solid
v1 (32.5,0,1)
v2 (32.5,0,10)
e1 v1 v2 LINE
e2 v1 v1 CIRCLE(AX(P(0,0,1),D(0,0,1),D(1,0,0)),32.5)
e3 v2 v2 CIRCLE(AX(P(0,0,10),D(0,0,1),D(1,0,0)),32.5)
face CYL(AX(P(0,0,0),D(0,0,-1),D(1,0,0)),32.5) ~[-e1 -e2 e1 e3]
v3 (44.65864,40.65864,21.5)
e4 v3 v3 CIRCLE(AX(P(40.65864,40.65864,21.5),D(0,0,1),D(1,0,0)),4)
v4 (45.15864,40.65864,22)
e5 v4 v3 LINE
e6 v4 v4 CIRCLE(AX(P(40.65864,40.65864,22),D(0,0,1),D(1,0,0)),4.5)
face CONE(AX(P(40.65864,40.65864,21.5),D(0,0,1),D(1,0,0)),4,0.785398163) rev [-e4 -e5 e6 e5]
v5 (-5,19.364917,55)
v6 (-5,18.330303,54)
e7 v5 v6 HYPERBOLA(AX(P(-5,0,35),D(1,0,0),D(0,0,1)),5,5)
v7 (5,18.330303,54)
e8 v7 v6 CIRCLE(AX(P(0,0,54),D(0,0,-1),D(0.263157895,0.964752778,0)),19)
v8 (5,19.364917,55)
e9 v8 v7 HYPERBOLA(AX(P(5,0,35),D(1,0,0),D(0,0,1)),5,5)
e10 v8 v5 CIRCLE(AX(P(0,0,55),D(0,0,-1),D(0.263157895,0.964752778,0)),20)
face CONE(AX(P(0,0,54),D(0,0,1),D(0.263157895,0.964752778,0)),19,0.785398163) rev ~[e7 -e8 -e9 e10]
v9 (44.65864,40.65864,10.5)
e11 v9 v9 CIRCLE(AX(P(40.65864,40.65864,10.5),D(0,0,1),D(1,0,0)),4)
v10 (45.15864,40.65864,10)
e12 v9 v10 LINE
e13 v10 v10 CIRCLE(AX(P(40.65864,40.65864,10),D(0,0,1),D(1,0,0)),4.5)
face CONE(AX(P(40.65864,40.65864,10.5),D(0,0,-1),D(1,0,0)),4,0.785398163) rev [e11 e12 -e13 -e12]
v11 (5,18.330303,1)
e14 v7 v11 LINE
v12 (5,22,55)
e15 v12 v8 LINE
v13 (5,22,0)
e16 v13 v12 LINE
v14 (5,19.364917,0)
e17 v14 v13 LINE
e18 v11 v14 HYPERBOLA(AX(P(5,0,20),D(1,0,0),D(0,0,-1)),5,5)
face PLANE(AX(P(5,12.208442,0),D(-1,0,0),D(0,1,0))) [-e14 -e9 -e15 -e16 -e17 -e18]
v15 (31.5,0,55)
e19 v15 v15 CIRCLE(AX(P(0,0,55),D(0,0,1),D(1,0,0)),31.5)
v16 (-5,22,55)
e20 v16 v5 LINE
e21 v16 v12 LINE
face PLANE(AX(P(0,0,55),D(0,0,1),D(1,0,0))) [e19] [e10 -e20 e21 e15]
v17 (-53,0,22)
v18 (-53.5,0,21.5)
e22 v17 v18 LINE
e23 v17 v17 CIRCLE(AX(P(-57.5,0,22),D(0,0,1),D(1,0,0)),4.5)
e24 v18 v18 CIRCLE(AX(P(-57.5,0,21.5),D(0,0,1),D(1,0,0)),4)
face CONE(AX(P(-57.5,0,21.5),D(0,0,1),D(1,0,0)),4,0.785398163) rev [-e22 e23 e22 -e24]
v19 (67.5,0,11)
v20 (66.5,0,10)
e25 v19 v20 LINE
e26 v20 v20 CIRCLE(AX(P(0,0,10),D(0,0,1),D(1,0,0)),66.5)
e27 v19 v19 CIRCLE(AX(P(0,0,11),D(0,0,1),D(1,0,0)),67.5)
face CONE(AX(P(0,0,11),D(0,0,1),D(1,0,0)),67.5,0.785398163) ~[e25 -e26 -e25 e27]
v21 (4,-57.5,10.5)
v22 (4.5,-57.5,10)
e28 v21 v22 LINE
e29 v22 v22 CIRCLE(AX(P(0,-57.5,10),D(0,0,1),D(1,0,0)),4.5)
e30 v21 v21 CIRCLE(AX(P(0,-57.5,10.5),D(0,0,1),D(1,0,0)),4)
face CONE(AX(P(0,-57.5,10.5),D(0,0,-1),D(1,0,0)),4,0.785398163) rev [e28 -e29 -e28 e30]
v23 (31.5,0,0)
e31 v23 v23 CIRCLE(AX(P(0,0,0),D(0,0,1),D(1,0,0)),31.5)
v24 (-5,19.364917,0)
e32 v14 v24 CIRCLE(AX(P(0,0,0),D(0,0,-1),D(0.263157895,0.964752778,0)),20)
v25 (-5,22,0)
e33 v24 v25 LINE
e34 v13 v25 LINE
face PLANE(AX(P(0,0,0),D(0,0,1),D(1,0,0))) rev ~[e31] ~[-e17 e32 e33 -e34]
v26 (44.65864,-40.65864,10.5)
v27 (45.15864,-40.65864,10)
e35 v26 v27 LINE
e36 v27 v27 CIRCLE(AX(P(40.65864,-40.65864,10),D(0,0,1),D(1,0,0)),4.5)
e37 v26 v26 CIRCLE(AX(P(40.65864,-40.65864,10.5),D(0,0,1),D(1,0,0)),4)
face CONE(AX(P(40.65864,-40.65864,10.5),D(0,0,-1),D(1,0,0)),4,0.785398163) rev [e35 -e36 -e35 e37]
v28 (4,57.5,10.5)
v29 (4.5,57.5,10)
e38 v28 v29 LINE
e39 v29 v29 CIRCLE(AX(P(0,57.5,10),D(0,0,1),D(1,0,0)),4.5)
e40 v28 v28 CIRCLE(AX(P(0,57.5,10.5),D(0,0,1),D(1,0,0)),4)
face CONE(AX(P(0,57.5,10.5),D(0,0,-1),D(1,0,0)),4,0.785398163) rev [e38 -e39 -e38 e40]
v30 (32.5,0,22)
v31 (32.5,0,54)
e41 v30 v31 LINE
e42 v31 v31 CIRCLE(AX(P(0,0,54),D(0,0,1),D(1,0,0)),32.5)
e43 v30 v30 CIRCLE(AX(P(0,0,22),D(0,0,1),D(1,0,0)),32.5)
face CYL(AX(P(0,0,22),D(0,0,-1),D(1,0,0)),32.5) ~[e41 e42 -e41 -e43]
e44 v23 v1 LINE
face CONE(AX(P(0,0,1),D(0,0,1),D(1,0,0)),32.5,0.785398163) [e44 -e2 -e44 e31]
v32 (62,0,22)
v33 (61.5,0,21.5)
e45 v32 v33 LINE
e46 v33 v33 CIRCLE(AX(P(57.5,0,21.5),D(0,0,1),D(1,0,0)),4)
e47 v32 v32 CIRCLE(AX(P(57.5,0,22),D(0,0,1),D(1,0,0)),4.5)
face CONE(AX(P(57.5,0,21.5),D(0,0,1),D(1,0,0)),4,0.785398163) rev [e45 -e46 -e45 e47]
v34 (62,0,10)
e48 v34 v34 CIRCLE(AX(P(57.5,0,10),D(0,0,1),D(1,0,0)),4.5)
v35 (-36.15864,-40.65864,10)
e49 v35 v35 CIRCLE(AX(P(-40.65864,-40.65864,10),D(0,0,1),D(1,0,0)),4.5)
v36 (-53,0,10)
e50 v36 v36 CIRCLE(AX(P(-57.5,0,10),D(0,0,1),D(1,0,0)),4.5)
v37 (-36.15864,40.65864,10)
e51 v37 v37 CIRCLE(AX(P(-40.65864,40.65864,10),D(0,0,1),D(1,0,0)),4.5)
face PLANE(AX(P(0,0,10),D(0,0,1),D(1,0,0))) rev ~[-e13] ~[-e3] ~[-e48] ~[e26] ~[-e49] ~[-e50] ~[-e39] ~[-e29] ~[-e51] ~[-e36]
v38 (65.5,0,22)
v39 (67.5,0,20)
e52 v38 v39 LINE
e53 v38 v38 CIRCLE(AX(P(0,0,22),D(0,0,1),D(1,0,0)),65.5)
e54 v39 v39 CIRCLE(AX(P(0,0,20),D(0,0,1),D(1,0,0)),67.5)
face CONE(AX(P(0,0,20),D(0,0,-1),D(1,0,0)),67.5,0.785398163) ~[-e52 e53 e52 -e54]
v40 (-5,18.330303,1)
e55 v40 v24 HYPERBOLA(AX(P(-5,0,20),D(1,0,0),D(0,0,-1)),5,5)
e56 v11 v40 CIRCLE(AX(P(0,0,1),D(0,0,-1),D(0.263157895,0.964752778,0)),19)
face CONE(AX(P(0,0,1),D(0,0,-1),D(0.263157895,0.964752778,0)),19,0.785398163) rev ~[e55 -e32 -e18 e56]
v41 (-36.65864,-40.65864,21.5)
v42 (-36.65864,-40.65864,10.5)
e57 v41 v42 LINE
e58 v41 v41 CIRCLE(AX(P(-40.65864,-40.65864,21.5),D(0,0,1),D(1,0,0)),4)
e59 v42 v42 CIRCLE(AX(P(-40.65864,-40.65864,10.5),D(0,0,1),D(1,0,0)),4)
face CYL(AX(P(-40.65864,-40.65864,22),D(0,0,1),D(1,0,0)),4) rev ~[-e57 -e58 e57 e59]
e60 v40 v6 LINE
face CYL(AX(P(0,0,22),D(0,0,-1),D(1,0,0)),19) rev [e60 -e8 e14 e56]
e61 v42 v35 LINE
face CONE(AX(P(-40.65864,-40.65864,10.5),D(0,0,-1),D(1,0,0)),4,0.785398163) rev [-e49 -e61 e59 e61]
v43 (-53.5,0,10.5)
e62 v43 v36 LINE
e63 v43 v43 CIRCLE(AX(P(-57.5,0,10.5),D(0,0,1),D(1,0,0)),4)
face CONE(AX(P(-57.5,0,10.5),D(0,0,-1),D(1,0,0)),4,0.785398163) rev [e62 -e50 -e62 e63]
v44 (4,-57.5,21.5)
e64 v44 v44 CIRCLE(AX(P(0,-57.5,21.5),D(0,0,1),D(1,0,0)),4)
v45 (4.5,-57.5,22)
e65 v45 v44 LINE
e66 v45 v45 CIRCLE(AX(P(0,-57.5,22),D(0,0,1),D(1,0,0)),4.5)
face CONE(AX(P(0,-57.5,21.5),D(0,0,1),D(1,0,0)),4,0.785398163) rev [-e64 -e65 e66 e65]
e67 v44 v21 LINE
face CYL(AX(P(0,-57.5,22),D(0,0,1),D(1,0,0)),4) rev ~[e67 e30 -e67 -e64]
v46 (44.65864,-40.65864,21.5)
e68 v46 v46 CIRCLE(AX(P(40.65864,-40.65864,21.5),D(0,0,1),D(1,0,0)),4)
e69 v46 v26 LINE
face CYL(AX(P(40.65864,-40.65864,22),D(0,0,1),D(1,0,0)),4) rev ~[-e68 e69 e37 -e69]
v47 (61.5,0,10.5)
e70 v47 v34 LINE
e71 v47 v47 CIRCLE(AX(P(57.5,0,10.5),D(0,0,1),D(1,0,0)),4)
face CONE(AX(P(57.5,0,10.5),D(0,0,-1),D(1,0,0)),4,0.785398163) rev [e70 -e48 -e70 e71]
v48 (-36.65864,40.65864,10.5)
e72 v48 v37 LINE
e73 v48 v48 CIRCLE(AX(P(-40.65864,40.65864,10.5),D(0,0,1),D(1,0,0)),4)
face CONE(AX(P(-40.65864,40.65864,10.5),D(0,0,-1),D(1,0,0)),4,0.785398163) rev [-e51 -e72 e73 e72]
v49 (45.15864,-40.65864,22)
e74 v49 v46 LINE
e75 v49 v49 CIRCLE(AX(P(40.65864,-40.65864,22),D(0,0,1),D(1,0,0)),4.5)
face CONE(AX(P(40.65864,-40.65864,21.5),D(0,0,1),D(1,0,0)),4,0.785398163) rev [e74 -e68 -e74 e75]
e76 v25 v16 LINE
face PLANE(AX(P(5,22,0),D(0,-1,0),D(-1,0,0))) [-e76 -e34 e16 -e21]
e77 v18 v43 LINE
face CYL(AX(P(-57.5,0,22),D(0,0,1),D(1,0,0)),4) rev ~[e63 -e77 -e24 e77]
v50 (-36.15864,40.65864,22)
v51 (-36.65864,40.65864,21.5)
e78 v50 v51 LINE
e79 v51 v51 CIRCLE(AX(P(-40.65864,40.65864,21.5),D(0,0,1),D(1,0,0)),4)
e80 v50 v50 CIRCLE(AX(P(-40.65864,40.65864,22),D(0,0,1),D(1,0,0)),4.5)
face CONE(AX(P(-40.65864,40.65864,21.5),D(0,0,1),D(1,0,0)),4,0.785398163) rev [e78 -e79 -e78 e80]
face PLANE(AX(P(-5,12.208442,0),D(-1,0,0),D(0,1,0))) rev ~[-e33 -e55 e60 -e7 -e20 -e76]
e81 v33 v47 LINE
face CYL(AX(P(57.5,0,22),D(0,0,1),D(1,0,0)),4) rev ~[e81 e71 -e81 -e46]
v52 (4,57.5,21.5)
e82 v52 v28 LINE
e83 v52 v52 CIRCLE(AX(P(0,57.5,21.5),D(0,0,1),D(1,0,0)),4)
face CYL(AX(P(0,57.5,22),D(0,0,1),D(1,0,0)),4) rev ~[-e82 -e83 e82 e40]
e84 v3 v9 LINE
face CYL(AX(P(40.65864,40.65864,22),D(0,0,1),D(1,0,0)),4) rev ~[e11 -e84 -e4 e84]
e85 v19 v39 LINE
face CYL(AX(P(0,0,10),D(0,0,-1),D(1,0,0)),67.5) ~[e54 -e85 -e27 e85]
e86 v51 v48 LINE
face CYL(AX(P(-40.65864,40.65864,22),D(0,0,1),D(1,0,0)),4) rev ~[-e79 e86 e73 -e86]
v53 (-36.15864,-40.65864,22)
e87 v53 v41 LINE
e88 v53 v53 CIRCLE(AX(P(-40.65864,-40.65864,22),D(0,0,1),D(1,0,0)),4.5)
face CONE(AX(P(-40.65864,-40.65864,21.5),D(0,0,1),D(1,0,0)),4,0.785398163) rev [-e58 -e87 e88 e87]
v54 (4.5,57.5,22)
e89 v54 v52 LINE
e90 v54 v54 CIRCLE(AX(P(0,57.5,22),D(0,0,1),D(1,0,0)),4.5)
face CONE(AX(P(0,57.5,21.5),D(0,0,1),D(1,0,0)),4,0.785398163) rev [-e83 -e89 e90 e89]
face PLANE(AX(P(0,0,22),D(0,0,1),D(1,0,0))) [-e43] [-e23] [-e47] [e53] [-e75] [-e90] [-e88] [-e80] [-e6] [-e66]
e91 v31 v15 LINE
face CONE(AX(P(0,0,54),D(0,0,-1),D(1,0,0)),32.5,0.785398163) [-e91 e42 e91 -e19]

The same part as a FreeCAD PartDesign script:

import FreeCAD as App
import Part
import Sketcher
from FreeCAD import Vector


def edges_at(feature, points):
    """Names of the edges that pass closest to the given points."""
    edges = feature.Shape.Edges
    near = lambda p: min(range(len(edges)), key=lambda i: edges[i].distToShape(Part.Vertex(*p))[0])
    return sorted({f"Edge{near(p) + 1}" for p in points})

doc = App.newDocument("Part")
body = doc.addObject("PartDesign::Body", "Body")

sketch1 = body.newObject("Sketcher::SketchObject", "Sketch")
sketch1.AttachmentSupport = (doc.getObject("XY_Plane"), [""])
sketch1.MapMode = "FlatFace"
sketch1.addGeometry(Part.Circle(Vector(0, 0, 0), Vector(0, 0, 1), 32), False)
sketch1.addConstraint(Sketcher.Constraint("Coincident", 0, 3, -1, 1))
sketch1.addConstraint(Sketcher.Constraint("Diameter", 0, 65.0))
pad1 = body.newObject("PartDesign::Pad", "Pad")
pad1.Profile = sketch1
pad1.Length = 10

sketch2 = body.newObject("Sketcher::SketchObject", "Sketch001")
sketch2.AttachmentSupport = (doc.getObject("XY_Plane"), [""])
sketch2.MapMode = "FlatFace"
sketch2.AttachmentOffset = App.Placement(Vector(0, 0, 10), App.Rotation())
sketch2.addGeometry(Part.Circle(Vector(0, 0, 0), Vector(0, 0, 1), 68), False)
sketch2.addConstraint(Sketcher.Constraint("Coincident", 0, 3, -1, 1))
sketch2.addConstraint(Sketcher.Constraint("Diameter", 0, 135.0))
pad2 = body.newObject("PartDesign::Pad", "Pad001")
pad2.Profile = sketch2
pad2.Length = 12

sketch3 = body.newObject("Sketcher::SketchObject", "Sketch002")
sketch3.AttachmentSupport = (doc.getObject("XY_Plane"), [""])
sketch3.MapMode = "FlatFace"
sketch3.AttachmentOffset = App.Placement(Vector(0, 0, 22), App.Rotation())
sketch3.addGeometry(Part.Circle(Vector(0, 0, 0), Vector(0, 0, 1), 19), False)
sketch3.addConstraint(Sketcher.Constraint("Coincident", 0, 3, -1, 1))
sketch3.addConstraint(Sketcher.Constraint("Diameter", 0, 38.0))
pocket1 = body.newObject("PartDesign::Pocket", "Pocket")
pocket1.Profile = sketch3
pocket1.Length = 45

sketch4 = body.newObject("Sketcher::SketchObject", "Sketch003")
sketch4.AttachmentSupport = (doc.getObject("XY_Plane"), [""])
sketch4.MapMode = "FlatFace"
sketch4.AttachmentOffset = App.Placement(Vector(0, 0, 22), App.Rotation())
sketch4.addGeometry(Part.Circle(Vector(0, 0, 0), Vector(0, 0, 1), 32), False)
sketch4.addGeometry(Part.Circle(Vector(0, 0, 0), Vector(0, 0, 1), 19), False)
sketch4.addConstraint(Sketcher.Constraint("Coincident", 0, 3, -1, 1))
sketch4.addConstraint(Sketcher.Constraint("Coincident", 1, 3, -1, 1))
sketch4.addConstraint(Sketcher.Constraint("Diameter", 0, 65.0))
sketch4.addConstraint(Sketcher.Constraint("Diameter", 1, 38.0))
pad3 = body.newObject("PartDesign::Pad", "Pad002")
pad3.Profile = sketch4
pad3.Length = 33

sketch5 = body.newObject("Sketcher::SketchObject", "Sketch004")
sketch5.AttachmentSupport = (doc.getObject("XY_Plane"), [""])
sketch5.MapMode = "FlatFace"
sketch5.addGeometry(Part.LineSegment(Vector(5, 22, 0), Vector(5, 12, 0)), False)
sketch5.addGeometry(Part.LineSegment(Vector(5, 12, 0), Vector(-5, 12, 0)), False)
sketch5.addGeometry(Part.LineSegment(Vector(-5, 12, 0), Vector(-5, 22, 0)), False)
sketch5.addGeometry(Part.LineSegment(Vector(-5, 22, 0), Vector(5, 22, 0)), False)
sketch5.addConstraint(Sketcher.Constraint("Coincident", 0, 2, 1, 1))
sketch5.addConstraint(Sketcher.Constraint("Coincident", 1, 2, 2, 1))
sketch5.addConstraint(Sketcher.Constraint("Coincident", 2, 2, 3, 1))
sketch5.addConstraint(Sketcher.Constraint("Coincident", 3, 2, 0, 1))
sketch5.addConstraint(Sketcher.Constraint("Vertical", 0))
sketch5.addConstraint(Sketcher.Constraint("Horizontal", 1))
sketch5.addConstraint(Sketcher.Constraint("Vertical", 2))
sketch5.addConstraint(Sketcher.Constraint("Horizontal", 3))
sketch5.addConstraint(Sketcher.Constraint("DistanceX", 1, 2, 1, 1, 10.0))
sketch5.addConstraint(Sketcher.Constraint("DistanceX", -1, 1, 0, 2, 5.0))
sketch5.addConstraint(Sketcher.Constraint("DistanceY", -1, 1, 2, 2, 22.0))
sketch5.addConstraint(Sketcher.Constraint("DistanceY", 0, 2, 0, 1, 9.791558))
pocket2 = body.newObject("PartDesign::Pocket", "Pocket001")
pocket2.Profile = sketch5
pocket2.Type = "ThroughAll"
pocket2.Reversed = True

sketch6 = body.newObject("Sketcher::SketchObject", "Sketch005")
sketch6.AttachmentSupport = (doc.getObject("XY_Plane"), [""])
sketch6.MapMode = "FlatFace"
sketch6.AttachmentOffset = App.Placement(Vector(0, 0, 22), App.Rotation())
sketch6.addGeometry(Part.Circle(Vector(40.7, 40.7, 0), Vector(0, 0, 1), 4), False)
sketch6.addGeometry(Part.Circle(Vector(0, 57.5, 0), Vector(0, 0, 1), 4), False)
sketch6.addGeometry(Part.Circle(Vector(57.5, 0, 0), Vector(0, 0, 1), 4), False)
sketch6.addGeometry(Part.Circle(Vector(40.7, -40.7, 0), Vector(0, 0, 1), 4), False)
sketch6.addGeometry(Part.Circle(Vector(0, -57.5, 0), Vector(0, 0, 1), 4), False)
sketch6.addGeometry(Part.Circle(Vector(-40.7, -40.7, 0), Vector(0, 0, 1), 4), False)
sketch6.addGeometry(Part.Circle(Vector(-57.5, 0, 0), Vector(0, 0, 1), 4), False)
sketch6.addGeometry(Part.Circle(Vector(-40.7, 40.7, 0), Vector(0, 0, 1), 4), False)
sketch6.addConstraint(Sketcher.Constraint("Equal", 0, 1))
sketch6.addConstraint(Sketcher.Constraint("Equal", 1, 2))
sketch6.addConstraint(Sketcher.Constraint("Equal", 2, 3))
sketch6.addConstraint(Sketcher.Constraint("Equal", 3, 4))
sketch6.addConstraint(Sketcher.Constraint("Equal", 4, 5))
sketch6.addConstraint(Sketcher.Constraint("Equal", 5, 6))
sketch6.addConstraint(Sketcher.Constraint("Equal", 6, 7))
sketch6.addConstraint(Sketcher.Constraint("Symmetric", 1, 3, 4, 3, -1, 1))
sketch6.addConstraint(Sketcher.Constraint("Symmetric", 0, 3, 5, 3, -1, 1))
sketch6.addConstraint(Sketcher.Constraint("Symmetric", 2, 3, 6, 3, -1, 1))
sketch6.addConstraint(Sketcher.Constraint("Symmetric", 3, 3, 7, 3, -1, 1))
sketch6.addConstraint(Sketcher.Constraint("Symmetric", 3, 3, 5, 3, -2))
sketch6.addConstraint(Sketcher.Constraint("PointOnObject", 1, 3, -2))
sketch6.addConstraint(Sketcher.Constraint("PointOnObject", 2, 3, -1))
sketch6.addConstraint(Sketcher.Constraint("Diameter", 0, 8.0))
sketch6.addConstraint(Sketcher.Constraint("DistanceY", 4, 3, 1, 3, 115.0))
sketch6.addConstraint(Sketcher.Constraint("DistanceX", -1, 1, 2, 3, 57.5))
sketch6.addConstraint(Sketcher.Constraint("DistanceX", -1, 1, 0, 3, 40.65864))
sketch6.addConstraint(Sketcher.Constraint("DistanceY", -1, 1, 0, 3, 40.65864))
pocket3 = body.newObject("PartDesign::Pocket", "Pocket002")
pocket3.Profile = sketch6
pocket3.Length = 30
doc.recompute()

chamfer = body.newObject("PartDesign::Chamfer", "Chamfer")
chamfer.Base = (pocket3, edges_at(pocket3, [
    (-32.5, 0, 55),
    (-32.5, 0, 0),
    (0, -19, 55),
    (-67.5, 0, 10),
]))
chamfer.Size = 1
doc.recompute()

chamfer2 = body.newObject("PartDesign::Chamfer", "Chamfer001")
chamfer2.Base = (chamfer, edges_at(chamfer, [
    (-4, 57.5, 10),
    (-4, 57.5, 22),
    (36.659, 40.659, 10),
    (36.659, 40.659, 22),
    (53.5, 0, 10),
    (53.5, 0, 22),
    (36.659, -40.659, 10),
    (36.659, -40.659, 22),
    (-4, -57.5, 10),
    (-4, -57.5, 22),
    (-44.659, -40.659, 10),
    (-44.659, -40.659, 22),
    (-61.5, 0, 10),
    (-61.5, 0, 22),
    (-44.659, 40.659, 10),
    (-44.659, 40.659, 22),
]))
chamfer2.Size = 0.5
doc.recompute()

chamfer3 = body.newObject("PartDesign::Chamfer", "Chamfer002")
chamfer3.Base = (chamfer2, edges_at(chamfer2, [(-67.5, 0, 22)]))
chamfer3.Size = 2
doc.recompute()

chamfer4 = body.newObject("PartDesign::Chamfer", "Chamfer003")
chamfer4.Base = (chamfer3, edges_at(chamfer3, [(0, -19, 0)]))
chamfer4.Size = 1

doc.recompute()
